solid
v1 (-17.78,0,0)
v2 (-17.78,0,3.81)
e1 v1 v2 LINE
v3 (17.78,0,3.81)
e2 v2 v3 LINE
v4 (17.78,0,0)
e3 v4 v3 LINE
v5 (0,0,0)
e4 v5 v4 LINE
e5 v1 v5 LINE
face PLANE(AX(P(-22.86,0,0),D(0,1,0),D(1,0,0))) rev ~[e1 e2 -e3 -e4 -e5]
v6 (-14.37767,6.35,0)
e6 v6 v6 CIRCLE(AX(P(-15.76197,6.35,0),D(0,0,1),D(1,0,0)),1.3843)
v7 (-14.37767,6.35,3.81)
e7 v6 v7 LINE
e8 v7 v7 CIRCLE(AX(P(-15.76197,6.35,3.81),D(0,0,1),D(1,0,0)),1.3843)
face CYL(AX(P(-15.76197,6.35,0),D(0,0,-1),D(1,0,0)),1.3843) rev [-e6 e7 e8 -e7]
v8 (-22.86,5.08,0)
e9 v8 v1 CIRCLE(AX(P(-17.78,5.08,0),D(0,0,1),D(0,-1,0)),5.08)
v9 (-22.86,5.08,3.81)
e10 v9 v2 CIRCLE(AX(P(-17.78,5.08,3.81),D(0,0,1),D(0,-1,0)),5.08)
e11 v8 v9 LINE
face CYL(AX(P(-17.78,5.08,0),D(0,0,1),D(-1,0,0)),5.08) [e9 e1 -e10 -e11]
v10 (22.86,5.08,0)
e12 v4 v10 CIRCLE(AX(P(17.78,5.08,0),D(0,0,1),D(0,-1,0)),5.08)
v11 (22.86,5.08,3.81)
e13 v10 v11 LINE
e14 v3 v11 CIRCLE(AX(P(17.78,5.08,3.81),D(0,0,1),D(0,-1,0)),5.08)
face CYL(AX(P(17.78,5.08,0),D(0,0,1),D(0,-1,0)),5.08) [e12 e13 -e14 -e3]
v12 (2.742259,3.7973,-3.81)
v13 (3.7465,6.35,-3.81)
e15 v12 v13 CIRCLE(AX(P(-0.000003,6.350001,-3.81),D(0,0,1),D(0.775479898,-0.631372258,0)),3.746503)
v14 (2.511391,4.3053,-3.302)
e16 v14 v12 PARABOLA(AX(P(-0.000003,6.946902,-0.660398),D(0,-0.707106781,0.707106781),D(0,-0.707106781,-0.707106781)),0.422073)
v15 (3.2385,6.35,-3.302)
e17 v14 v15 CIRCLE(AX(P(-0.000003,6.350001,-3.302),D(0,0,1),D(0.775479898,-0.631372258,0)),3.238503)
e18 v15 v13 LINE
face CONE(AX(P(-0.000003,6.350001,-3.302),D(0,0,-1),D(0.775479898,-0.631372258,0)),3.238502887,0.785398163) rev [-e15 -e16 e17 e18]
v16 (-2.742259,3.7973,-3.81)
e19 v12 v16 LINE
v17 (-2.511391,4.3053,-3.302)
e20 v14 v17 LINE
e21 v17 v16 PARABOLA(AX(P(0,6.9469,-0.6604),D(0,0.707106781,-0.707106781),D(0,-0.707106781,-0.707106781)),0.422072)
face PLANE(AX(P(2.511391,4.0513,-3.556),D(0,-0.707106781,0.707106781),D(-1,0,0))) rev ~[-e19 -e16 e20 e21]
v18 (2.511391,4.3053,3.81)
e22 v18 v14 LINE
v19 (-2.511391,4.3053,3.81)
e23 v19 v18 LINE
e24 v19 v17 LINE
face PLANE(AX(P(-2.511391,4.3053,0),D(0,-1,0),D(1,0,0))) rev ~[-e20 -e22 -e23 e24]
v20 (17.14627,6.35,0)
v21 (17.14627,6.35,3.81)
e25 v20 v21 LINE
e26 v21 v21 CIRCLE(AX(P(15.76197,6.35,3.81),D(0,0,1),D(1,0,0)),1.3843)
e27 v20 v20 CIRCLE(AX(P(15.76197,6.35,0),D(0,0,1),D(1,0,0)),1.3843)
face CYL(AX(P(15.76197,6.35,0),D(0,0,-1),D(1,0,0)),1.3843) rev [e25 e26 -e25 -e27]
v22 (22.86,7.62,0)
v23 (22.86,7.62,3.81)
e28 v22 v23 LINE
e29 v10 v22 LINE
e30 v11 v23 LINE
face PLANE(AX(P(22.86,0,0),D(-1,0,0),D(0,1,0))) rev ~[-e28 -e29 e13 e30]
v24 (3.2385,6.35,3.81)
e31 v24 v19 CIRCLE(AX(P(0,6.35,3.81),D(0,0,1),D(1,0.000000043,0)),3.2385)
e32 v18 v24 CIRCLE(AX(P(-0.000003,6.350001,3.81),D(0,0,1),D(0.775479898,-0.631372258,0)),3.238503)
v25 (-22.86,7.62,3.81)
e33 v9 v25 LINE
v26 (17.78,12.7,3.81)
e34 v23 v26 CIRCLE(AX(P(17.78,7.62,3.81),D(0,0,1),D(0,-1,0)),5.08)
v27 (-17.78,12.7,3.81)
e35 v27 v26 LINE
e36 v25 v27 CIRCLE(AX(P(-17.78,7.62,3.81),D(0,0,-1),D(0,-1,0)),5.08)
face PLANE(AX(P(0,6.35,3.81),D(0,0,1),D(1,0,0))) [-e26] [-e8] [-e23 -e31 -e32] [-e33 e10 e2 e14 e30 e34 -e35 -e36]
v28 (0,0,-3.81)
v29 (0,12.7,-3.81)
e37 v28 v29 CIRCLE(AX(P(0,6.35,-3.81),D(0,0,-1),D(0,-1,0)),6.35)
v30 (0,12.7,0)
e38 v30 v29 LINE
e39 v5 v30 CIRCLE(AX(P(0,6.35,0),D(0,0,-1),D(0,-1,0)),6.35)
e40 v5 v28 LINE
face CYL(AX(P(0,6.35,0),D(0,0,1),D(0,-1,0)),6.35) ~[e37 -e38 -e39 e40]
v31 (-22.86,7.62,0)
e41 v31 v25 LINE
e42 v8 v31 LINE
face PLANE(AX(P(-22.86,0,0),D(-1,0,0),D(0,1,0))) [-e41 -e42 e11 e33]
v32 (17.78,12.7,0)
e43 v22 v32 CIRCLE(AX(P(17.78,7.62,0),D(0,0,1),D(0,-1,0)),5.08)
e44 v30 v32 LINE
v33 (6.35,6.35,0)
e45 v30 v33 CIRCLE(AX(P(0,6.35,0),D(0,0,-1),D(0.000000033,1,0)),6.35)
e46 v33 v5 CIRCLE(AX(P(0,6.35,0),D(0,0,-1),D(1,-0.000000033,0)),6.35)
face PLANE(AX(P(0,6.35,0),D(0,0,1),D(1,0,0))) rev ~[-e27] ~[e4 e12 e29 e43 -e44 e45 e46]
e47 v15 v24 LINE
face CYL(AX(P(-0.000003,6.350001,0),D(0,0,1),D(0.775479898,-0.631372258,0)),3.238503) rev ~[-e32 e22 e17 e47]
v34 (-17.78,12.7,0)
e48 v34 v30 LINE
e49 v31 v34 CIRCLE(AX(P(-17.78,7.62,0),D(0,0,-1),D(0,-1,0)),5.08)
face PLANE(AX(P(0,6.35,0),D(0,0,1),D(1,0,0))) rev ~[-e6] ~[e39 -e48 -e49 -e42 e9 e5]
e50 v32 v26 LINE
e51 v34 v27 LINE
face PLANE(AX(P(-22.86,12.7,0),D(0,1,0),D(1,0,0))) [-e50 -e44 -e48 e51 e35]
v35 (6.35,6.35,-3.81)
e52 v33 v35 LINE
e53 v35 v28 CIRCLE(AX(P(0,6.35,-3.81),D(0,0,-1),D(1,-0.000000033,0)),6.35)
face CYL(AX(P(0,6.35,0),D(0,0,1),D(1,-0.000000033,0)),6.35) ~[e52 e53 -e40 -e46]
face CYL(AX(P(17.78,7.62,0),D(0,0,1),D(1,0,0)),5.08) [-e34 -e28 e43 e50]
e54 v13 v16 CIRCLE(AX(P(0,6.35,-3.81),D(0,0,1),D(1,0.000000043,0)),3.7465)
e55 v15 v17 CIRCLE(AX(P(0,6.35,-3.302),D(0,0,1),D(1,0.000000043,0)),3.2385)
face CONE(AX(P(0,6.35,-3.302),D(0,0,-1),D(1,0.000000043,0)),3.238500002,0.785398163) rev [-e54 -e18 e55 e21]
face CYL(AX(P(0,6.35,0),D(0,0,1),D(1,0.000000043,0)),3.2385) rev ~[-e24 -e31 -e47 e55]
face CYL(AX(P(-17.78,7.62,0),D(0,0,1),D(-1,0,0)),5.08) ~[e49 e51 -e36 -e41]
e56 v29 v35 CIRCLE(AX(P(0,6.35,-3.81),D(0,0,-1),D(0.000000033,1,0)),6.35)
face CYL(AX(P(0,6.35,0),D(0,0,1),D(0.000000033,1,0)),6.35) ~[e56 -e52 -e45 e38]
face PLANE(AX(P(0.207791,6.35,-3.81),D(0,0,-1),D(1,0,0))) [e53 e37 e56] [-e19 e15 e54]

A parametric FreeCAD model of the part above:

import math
import FreeCAD as App
import Part
import Sketcher

V = App.Vector
Q = App.Units.Quantity


def edges_at(feature, points):
    """Names of the edges that pass closest to the given points."""
    edges = feature.Shape.Edges
    near = lambda p: min(range(len(edges)), key=lambda i: edges[i].distToShape(Part.Vertex(*p))[0])
    return sorted({f"Edge{near(p) + 1}" for p in points})

doc = App.newDocument("Part")
body = doc.addObject("PartDesign::Body", "Body")

sketch1 = body.newObject("Sketcher::SketchObject", "Sketch")
sketch1.AttachmentSupport = (doc.getObject("XY_Plane"), [""])
sketch1.MapMode = "FlatFace"
sketch1.addGeometry(Part.LineSegment(V(-22.9, 12.7, 0), V(-22.9, 0, 0)), False)
sketch1.addGeometry(Part.LineSegment(V(-22.9, 0, 0), V(22.9, 0, 0)), False)
sketch1.addGeometry(Part.LineSegment(V(22.9, 0, 0), V(22.9, 12.7, 0)), False)
sketch1.addGeometry(Part.LineSegment(V(22.9, 12.7, 0), V(-22.9, 12.7, 0)), False)
sketch1.addGeometry(Part.Circle(V(-15.8, 6.3, 0), V(0, 0, 1), 1.4), False)
sketch1.addGeometry(Part.Circle(V(15.8, 6.3, 0), V(0, 0, 1), 1.4), False)
sketch1.addConstraint(Sketcher.Constraint("Coincident", 0, 2, 1, 1))
sketch1.addConstraint(Sketcher.Constraint("Coincident", 1, 2, 2, 1))
sketch1.addConstraint(Sketcher.Constraint("Coincident", 2, 2, 3, 1))
sketch1.addConstraint(Sketcher.Constraint("Coincident", 3, 2, 0, 1))
sketch1.addConstraint(Sketcher.Constraint("Vertical", 0))
sketch1.addConstraint(Sketcher.Constraint("Horizontal", 1))
sketch1.addConstraint(Sketcher.Constraint("Vertical", 2))
sketch1.addConstraint(Sketcher.Constraint("Horizontal", 3))
sketch1.addConstraint(Sketcher.Constraint("Equal", 4, 5))
sketch1.addConstraint(Sketcher.Constraint("Symmetric", 0, 2, 1, 2, -1, 1))
sketch1.addConstraint(Sketcher.Constraint("Symmetric", 4, 3, 5, 3, -2))
sketch1.addConstraint(Sketcher.Constraint("Diameter", 4, Q("0.109 in")))
sketch1.addConstraint(Sketcher.Constraint("DistanceX", 1, 1, 1, 2, Q("1.8 in")))
sketch1.addConstraint(Sketcher.Constraint("DistanceY", 0, 2, 0, 1, Q("0.5 in")))
sketch1.addConstraint(Sketcher.Constraint("DistanceY", -1, 1, 4, 3, Q("0.25 in")))
sketch1.addConstraint(Sketcher.Constraint("DistanceX", 4, 3, 5, 3, Q("1.2411 in")))
pad1 = body.newObject("PartDesign::Pad", "Pad")
pad1.Profile = sketch1
pad1.Length = Q("0.15 in")
doc.recompute()

fillet = body.newObject("PartDesign::Fillet", "Fillet")
fillet.Base = (pad1, edges_at(pad1, [
    (-22.86, 12.7, 1.905),
    (-22.86, 0, 1.905),
    (22.86, 12.7, 1.905),
    (22.86, 0, 1.905),
]))
fillet.Radius = Q("0.2 in")

sketch2 = body.newObject("Sketcher::SketchObject", "Sketch001")
sketch2.AttachmentSupport = (doc.getObject("XY_Plane"), [""])
sketch2.MapMode = "FlatFace"
sketch2.addGeometry(Part.ArcOfCircle(Part.Circle(V(0, 6, 0), V(0, 0, 1), 6), math.radians(0), math.radians(90)), False)
sketch2.addGeometry(Part.ArcOfCircle(Part.Circle(V(0, 6, 0), V(0, 0, 1), 6), math.radians(-90), math.radians(0)), False)
sketch2.addGeometry(Part.ArcOfCircle(Part.Circle(V(0, 6, 0), V(0, 0, 1), 6), math.radians(90), math.radians(270)), False)
sketch2.addConstraint(Sketcher.Constraint("Tangent", 0, 1, 1, 2))
sketch2.addConstraint(Sketcher.Constraint("Tangent", 1, 1, 2, 2))
sketch2.addConstraint(Sketcher.Constraint("Tangent", 2, 1, 0, 2))
sketch2.addConstraint(Sketcher.Constraint("Coincident", 1, 1, -1, 1))
sketch2.addConstraint(Sketcher.Constraint("PointOnObject", 0, 3, -2))
sketch2.addConstraint(Sketcher.Constraint("PointOnObject", 2, 1, -2))
sketch2.addConstraint(Sketcher.Constraint("Horizontal", 2, 3, 0, 1))
sketch2.addConstraint(Sketcher.Constraint("Radius", 0, Q("0.25 in")))
pad2 = body.newObject("PartDesign::Pad", "Pad001")
pad2.Profile = sketch2
pad2.Length = Q("0.15 in")
pad2.Reversed = True

sketch3 = body.newObject("Sketcher::SketchObject", "Sketch002")
sketch3.AttachmentSupport = (doc.getObject("XY_Plane"), [""])
sketch3.MapMode = "FlatFace"
sketch3.addGeometry(Part.ArcOfCircle(Part.Circle(V(0, 6.4, 0), V(0, 0, 1), 3.2), math.radians(-39), math.radians(0)), False)
sketch3.addGeometry(Part.ArcOfCircle(Part.Circle(V(0, 6.3, 0), V(0, 0, 1), 3.2), math.radians(0), math.radians(219)), False)
sketch3.addGeometry(Part.LineSegment(V(-2.5, 4.3, 0), V(2.5, 4.3, 0)), False)
sketch3.addConstraint(Sketcher.Constraint("Tangent", 0, 2, 1, 1))
sketch3.addConstraint(Sketcher.Constraint("Coincident", 1, 2, 2, 1))
sketch3.addConstraint(Sketcher.Constraint("Coincident", 2, 2, 0, 1))
sketch3.addConstraint(Sketcher.Constraint("Horizontal", 2))
sketch3.addConstraint(Sketcher.Constraint("PointOnObject", 1, 3, -2))
sketch3.addConstraint(Sketcher.Constraint("Horizontal", 1, 3, 0, 2))
sketch3.addConstraint(Sketcher.Constraint("Radius", 0, Q("0.1275001 in")))
sketch3.addConstraint(Sketcher.Constraint("Radius", 1, Q("0.1275 in")))
sketch3.addConstraint(Sketcher.Constraint("DistanceY", -1, 1, 0, 3, Q("0.25 in")))
sketch3.addConstraint(Sketcher.Constraint("DistanceY", -1, 1, 1, 2, Q("0.1695 in")))
pocket1 = body.newObject("PartDesign::Pocket", "Pocket")
pocket1.Profile = sketch3
pocket1.Length = Q("1 in")
pocket1.Midplane = True
doc.recompute()

chamfer = body.newObject("PartDesign::Chamfer", "Chamfer")
chamfer.Base = (pocket1, edges_at(pocket1, [(0, 4.305, -3.81), (-1.085, 9.401, -3.81)]))
chamfer.Size = Q("0.02 in")

doc.recompute()
